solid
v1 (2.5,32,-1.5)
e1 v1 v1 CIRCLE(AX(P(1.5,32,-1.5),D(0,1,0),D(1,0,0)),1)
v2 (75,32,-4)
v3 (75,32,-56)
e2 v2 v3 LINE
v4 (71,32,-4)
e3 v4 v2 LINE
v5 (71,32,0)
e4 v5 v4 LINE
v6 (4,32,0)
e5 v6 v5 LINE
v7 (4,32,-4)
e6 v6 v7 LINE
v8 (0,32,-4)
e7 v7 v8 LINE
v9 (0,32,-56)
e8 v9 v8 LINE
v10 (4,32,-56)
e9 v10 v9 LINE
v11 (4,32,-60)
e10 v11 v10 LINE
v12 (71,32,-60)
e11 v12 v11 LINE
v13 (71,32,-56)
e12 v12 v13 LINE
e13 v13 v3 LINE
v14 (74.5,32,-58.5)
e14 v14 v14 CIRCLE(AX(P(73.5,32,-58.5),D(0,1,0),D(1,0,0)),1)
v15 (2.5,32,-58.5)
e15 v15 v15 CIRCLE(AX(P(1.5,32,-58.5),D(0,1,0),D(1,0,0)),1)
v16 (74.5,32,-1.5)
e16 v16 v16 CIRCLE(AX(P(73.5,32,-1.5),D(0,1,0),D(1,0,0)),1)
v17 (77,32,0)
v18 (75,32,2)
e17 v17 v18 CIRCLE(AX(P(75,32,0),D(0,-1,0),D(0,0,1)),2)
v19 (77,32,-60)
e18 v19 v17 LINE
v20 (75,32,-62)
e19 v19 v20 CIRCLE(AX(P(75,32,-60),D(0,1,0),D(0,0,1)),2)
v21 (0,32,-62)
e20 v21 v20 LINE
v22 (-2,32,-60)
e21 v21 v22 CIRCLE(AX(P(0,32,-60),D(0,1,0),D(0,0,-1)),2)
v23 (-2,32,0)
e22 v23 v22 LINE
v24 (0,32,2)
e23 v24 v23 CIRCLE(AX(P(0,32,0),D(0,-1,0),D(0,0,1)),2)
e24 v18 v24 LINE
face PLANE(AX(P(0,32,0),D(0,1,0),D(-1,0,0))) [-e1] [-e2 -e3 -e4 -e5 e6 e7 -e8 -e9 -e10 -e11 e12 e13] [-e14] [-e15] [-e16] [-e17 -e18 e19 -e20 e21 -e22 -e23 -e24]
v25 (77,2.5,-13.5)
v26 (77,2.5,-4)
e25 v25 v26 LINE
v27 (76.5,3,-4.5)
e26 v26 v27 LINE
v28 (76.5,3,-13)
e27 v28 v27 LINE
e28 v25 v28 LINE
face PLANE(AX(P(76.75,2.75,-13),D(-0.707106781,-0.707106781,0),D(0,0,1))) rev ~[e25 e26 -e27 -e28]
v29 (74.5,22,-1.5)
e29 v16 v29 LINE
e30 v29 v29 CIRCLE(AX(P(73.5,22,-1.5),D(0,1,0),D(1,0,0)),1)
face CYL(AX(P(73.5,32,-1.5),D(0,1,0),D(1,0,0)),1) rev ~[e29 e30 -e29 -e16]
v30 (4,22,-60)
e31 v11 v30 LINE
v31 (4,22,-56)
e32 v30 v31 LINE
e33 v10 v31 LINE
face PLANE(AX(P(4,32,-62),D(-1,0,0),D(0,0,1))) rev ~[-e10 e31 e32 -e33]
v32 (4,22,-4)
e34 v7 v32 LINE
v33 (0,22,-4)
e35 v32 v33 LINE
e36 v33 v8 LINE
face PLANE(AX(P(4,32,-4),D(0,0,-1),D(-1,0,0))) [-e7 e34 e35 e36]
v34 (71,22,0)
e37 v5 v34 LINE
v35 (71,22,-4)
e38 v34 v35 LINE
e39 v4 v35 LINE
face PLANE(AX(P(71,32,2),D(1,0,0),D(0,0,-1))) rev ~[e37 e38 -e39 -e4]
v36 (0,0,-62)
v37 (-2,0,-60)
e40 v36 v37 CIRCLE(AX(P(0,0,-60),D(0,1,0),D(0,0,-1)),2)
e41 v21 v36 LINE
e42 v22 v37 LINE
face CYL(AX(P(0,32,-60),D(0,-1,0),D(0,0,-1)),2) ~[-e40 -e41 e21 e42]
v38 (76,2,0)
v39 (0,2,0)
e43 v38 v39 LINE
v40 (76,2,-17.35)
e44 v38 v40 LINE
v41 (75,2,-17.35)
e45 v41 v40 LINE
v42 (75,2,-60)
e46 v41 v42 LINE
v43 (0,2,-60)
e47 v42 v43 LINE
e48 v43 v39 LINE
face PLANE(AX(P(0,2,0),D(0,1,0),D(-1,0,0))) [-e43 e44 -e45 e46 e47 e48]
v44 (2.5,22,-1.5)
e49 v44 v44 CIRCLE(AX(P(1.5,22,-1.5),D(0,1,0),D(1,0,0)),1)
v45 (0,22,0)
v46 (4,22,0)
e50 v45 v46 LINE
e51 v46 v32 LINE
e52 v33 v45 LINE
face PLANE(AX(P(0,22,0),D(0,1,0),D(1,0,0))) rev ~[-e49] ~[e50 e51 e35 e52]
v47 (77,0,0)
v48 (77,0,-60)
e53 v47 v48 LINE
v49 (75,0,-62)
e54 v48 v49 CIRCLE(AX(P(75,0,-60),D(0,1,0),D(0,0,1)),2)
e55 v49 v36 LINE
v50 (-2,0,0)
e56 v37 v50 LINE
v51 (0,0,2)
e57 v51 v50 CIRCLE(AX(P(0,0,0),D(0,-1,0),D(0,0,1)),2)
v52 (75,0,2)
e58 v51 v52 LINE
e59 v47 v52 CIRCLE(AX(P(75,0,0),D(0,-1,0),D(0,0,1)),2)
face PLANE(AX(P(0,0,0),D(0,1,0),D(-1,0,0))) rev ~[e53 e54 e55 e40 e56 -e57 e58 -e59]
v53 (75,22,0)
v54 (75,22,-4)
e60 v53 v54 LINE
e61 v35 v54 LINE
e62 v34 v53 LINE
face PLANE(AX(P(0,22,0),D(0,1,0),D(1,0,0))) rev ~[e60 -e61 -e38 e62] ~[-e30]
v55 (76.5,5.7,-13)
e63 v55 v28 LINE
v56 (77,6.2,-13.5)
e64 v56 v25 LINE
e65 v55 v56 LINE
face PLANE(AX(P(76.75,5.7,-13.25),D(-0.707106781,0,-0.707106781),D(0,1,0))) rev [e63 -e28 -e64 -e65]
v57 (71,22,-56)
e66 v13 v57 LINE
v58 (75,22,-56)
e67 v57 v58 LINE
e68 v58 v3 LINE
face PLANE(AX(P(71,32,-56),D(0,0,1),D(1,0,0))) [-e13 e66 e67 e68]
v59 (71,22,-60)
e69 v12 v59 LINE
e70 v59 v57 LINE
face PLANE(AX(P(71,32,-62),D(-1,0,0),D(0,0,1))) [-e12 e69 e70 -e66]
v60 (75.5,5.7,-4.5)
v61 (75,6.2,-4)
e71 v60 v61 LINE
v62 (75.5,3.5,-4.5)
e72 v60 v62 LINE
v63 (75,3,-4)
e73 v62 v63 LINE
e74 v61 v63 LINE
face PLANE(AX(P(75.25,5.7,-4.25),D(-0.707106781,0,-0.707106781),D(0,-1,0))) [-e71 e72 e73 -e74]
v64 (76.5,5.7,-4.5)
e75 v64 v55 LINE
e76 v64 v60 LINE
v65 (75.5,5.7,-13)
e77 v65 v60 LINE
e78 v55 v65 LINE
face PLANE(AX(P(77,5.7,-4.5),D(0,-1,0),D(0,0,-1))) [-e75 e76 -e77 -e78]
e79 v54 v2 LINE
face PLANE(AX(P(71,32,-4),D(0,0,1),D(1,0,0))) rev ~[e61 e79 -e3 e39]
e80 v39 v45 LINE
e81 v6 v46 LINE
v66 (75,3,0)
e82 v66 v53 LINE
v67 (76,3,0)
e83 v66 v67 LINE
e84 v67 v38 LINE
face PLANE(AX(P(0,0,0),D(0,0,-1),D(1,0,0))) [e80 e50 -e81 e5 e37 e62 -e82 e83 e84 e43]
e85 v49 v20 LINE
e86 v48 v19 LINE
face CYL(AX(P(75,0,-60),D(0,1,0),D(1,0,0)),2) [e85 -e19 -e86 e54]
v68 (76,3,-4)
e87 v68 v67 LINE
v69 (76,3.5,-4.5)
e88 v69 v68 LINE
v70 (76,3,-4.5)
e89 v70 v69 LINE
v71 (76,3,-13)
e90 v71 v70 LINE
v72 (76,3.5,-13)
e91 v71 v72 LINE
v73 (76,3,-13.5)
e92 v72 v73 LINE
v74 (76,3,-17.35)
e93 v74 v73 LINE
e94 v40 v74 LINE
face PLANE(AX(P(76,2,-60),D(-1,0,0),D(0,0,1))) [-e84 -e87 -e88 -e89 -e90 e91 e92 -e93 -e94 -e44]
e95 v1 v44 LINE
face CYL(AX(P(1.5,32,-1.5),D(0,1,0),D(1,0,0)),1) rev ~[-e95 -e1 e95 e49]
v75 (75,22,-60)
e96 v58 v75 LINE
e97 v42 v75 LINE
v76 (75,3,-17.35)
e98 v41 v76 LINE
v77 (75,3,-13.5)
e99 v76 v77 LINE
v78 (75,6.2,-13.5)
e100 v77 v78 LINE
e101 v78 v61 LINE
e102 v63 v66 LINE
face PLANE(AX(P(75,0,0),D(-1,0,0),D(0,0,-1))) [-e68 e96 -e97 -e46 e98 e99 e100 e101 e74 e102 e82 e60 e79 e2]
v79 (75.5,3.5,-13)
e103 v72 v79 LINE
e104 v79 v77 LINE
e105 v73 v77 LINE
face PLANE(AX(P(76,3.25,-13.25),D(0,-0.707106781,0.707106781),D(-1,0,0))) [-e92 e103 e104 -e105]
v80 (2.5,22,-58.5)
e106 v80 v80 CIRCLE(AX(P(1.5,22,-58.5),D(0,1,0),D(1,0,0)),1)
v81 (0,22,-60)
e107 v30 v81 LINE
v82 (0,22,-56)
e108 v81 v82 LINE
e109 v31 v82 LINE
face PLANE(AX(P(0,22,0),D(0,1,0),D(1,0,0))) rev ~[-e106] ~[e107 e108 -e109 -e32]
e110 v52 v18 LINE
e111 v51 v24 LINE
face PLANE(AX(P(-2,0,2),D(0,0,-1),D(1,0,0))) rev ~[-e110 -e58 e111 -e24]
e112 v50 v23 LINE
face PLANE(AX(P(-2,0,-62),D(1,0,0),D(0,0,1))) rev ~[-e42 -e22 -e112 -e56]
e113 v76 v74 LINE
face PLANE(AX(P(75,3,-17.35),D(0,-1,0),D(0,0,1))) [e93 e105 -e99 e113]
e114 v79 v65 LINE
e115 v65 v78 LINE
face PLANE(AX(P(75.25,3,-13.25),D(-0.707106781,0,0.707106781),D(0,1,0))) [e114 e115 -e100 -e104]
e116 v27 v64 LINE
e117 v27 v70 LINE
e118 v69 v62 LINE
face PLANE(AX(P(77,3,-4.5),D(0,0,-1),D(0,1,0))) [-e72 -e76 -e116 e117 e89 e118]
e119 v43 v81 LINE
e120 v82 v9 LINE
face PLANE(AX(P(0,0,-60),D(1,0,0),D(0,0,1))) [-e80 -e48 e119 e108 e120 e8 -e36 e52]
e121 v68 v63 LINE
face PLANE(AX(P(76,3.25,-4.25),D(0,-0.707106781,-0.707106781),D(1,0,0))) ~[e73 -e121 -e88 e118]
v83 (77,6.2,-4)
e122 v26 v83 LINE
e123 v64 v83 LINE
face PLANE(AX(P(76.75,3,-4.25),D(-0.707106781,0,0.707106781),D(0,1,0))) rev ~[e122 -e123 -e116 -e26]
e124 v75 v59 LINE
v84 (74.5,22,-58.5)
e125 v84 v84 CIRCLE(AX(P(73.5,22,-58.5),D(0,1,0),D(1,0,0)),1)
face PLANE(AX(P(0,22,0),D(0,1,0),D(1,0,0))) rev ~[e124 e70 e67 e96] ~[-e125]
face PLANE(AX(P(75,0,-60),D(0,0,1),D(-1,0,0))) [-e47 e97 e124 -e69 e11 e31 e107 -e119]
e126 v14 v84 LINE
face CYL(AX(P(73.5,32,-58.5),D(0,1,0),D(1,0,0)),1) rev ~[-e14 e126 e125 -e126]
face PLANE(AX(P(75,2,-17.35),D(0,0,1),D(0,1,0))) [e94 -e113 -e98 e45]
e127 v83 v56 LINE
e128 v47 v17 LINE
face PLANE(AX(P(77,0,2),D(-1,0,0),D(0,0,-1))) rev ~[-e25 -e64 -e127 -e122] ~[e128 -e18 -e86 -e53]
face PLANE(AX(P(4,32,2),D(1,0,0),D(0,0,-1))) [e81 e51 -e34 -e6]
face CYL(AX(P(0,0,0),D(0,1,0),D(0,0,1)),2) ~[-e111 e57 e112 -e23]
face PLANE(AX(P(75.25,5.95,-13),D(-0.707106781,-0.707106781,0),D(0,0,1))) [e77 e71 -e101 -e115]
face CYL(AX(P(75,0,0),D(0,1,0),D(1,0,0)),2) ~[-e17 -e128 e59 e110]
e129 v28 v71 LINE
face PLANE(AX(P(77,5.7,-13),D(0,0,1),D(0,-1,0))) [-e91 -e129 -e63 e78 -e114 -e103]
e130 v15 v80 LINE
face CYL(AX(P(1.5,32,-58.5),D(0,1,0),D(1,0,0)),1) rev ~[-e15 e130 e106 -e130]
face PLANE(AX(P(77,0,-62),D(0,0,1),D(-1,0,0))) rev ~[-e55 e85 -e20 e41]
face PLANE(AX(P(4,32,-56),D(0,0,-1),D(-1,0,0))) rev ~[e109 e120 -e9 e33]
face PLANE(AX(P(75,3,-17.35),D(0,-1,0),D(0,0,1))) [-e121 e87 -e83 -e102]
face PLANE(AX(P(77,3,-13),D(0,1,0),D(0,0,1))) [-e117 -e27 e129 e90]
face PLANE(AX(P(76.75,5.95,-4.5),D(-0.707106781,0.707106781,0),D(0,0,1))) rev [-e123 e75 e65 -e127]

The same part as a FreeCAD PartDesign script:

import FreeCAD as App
import Part
import Sketcher
Q = App.Units.Quantity


def edges_at(feature, points):
    """Names of the edges that pass closest to the given points."""
    edges = feature.Shape.Edges
    near = lambda p: min(range(len(edges)), key=lambda i: edges[i].distToShape(Part.Vertex(*p))[0])
    return sorted({f"Edge{near(p) + 1}" for p in points})

doc = App.newDocument("Part")
body = doc.addObject("PartDesign::Body", "Body")

sketch1 = body.newObject("Sketcher::SketchObject", "Sketch")
sketch1.AttachmentSupport = (doc.getObject("XZ_Plane"), [""])
sketch1.MapMode = "FlatFace"
sketch1.addGeometry([
    Part.LineSegment(App.Vector(0, -60, 0), App.Vector(0, 0, 0)),
    Part.LineSegment(App.Vector(0, 0, 0), App.Vector(75, 0, 0)),
    Part.LineSegment(App.Vector(75, 0, 0), App.Vector(75, -60, 0)),
    Part.LineSegment(App.Vector(75, -60, 0), App.Vector(0, -60, 0)),
], False)
sketch1.addConstraint([
    Sketcher.Constraint("Coincident", 0, 2, 1, 1),
    Sketcher.Constraint("Coincident", 1, 2, 2, 1),
    Sketcher.Constraint("Coincident", 2, 2, 3, 1),
    Sketcher.Constraint("Coincident", 3, 2, 0, 1),
    Sketcher.Constraint("Vertical", 0),
    Sketcher.Constraint("Horizontal", 1),
    Sketcher.Constraint("Vertical", 2),
    Sketcher.Constraint("Horizontal", 3),
    Sketcher.Constraint("Coincident", 0, 2, -1, 1),
    Sketcher.Constraint("DistanceX", 1, 1, 1, 2, Q("75 mm")),
    Sketcher.Constraint("DistanceY", 0, 1, 0, 2, Q("60 mm")),
])
pad1 = body.newObject("PartDesign::Pad", "Pad")
pad1.Profile = sketch1
pad1.Length = 2
pad1.Reversed = True

sketch2 = body.newObject("Sketcher::SketchObject", "Sketch001")
sketch2.AttachmentSupport = (doc.getObject("XZ_Plane"), [""])
sketch2.MapMode = "FlatFace"
sketch2.addGeometry([
    Part.LineSegment(App.Vector(-2, -62, 0), App.Vector(-2, 2, 0)),
    Part.LineSegment(App.Vector(-2, 2, 0), App.Vector(77, 2, 0)),
    Part.LineSegment(App.Vector(77, 2, 0), App.Vector(77, -62, 0)),
    Part.LineSegment(App.Vector(77, -62, 0), App.Vector(-2, -62, 0)),
    Part.LineSegment(App.Vector(75, 0, 0), App.Vector(0, 0, 0)),
    Part.LineSegment(App.Vector(0, 0, 0), App.Vector(0, -60, 0)),
    Part.LineSegment(App.Vector(0, -60, 0), App.Vector(75, -60, 0)),
    Part.LineSegment(App.Vector(75, -60, 0), App.Vector(75, 0, 0)),
], False)
sketch2.addConstraint([
    Sketcher.Constraint("Coincident", 0, 2, 1, 1),
    Sketcher.Constraint("Coincident", 1, 2, 2, 1),
    Sketcher.Constraint("Coincident", 2, 2, 3, 1),
    Sketcher.Constraint("Coincident", 3, 2, 0, 1),
    Sketcher.Constraint("Coincident", 4, 2, 5, 1),
    Sketcher.Constraint("Coincident", 5, 2, 6, 1),
    Sketcher.Constraint("Coincident", 6, 2, 7, 1),
    Sketcher.Constraint("Coincident", 7, 2, 4, 1),
    Sketcher.Constraint("Vertical", 0),
    Sketcher.Constraint("Horizontal", 1),
    Sketcher.Constraint("Vertical", 2),
    Sketcher.Constraint("Horizontal", 3),
    Sketcher.Constraint("Horizontal", 4),
    Sketcher.Constraint("Vertical", 5),
    Sketcher.Constraint("Horizontal", 6),
    Sketcher.Constraint("Vertical", 7),
    Sketcher.Constraint("Coincident", 4, 2, -1, 1),
    Sketcher.Constraint("DistanceX", 4, 2, 4, 1, Q("75 mm")),
    Sketcher.Constraint("DistanceY", 5, 2, 5, 1, Q("60 mm")),
    Sketcher.Constraint("DistanceX", 0, 2, -1, 1, Q("2 mm")),
    Sketcher.Constraint("DistanceY", -1, 1, 0, 2, Q("2 mm")),
    Sketcher.Constraint("DistanceY", 3, 2, 5, 2, Q("2 mm")),
    Sketcher.Constraint("DistanceX", 6, 2, 2, 2, Q("2 mm")),
])
pad2 = body.newObject("PartDesign::Pad", "Pad001")
pad2.Profile = sketch2
pad2.Length = 32
pad2.Reversed = True

sketch3 = body.newObject("Sketcher::SketchObject", "Sketch002")
sketch3.AttachmentSupport = (doc.getObject("XZ_Plane"), [""])
sketch3.MapMode = "FlatFace"
sketch3.AttachmentOffset = App.Placement(App.Vector(0, 0, -32), App.Rotation())
sketch3.addGeometry([
    Part.LineSegment(App.Vector(-2, -4, 0), App.Vector(-2, 2, 0)),
    Part.LineSegment(App.Vector(-2, 2, 0), App.Vector(4, 2, 0)),
    Part.LineSegment(App.Vector(4, 2, 0), App.Vector(4, -4, 0)),
    Part.LineSegment(App.Vector(4, -4, 0), App.Vector(-2, -4, 0)),
    Part.LineSegment(App.Vector(77, -56, 0), App.Vector(77, -62, 0)),
    Part.LineSegment(App.Vector(77, -62, 0), App.Vector(71, -62, 0)),
    Part.LineSegment(App.Vector(71, -62, 0), App.Vector(71, -56, 0)),
    Part.LineSegment(App.Vector(71, -56, 0), App.Vector(77, -56, 0)),
    Part.LineSegment(App.Vector(77, 2, 0), App.Vector(77, -4, 0)),
    Part.LineSegment(App.Vector(77, -4, 0), App.Vector(71, -4, 0)),
    Part.LineSegment(App.Vector(71, -4, 0), App.Vector(71, 2, 0)),
    Part.LineSegment(App.Vector(71, 2, 0), App.Vector(77, 2, 0)),
    Part.LineSegment(App.Vector(4, -56, 0), App.Vector(4, -62, 0)),
    Part.LineSegment(App.Vector(4, -62, 0), App.Vector(-2, -62, 0)),
    Part.LineSegment(App.Vector(-2, -62, 0), App.Vector(-2, -56, 0)),
    Part.LineSegment(App.Vector(-2, -56, 0), App.Vector(4, -56, 0)),
], False)
sketch3.addConstraint([
    Sketcher.Constraint("Coincident", 0, 2, 1, 1),
    Sketcher.Constraint("Coincident", 1, 2, 2, 1),
    Sketcher.Constraint("Coincident", 2, 2, 3, 1),
    Sketcher.Constraint("Coincident", 3, 2, 0, 1),
    Sketcher.Constraint("Coincident", 4, 2, 5, 1),
    Sketcher.Constraint("Coincident", 5, 2, 6, 1),
    Sketcher.Constraint("Coincident", 6, 2, 7, 1),
    Sketcher.Constraint("Coincident", 7, 2, 4, 1),
    Sketcher.Constraint("Coincident", 8, 2, 9, 1),
    Sketcher.Constraint("Coincident", 9, 2, 10, 1),
    Sketcher.Constraint("Coincident", 10, 2, 11, 1),
    Sketcher.Constraint("Coincident", 11, 2, 8, 1),
    Sketcher.Constraint("Coincident", 12, 2, 13, 1),
    Sketcher.Constraint("Coincident", 13, 2, 14, 1),
    Sketcher.Constraint("Coincident", 14, 2, 15, 1),
    Sketcher.Constraint("Coincident", 15, 2, 12, 1),
    Sketcher.Constraint("Vertical", 0),
    Sketcher.Constraint("Horizontal", 1),
    Sketcher.Constraint("Vertical", 2),
    Sketcher.Constraint("Horizontal", 3),
    Sketcher.Constraint("Vertical", 4),
    Sketcher.Constraint("Horizontal", 5),
    Sketcher.Constraint("Vertical", 6),
    Sketcher.Constraint("Horizontal", 7),
    Sketcher.Constraint("Vertical", 8),
    Sketcher.Constraint("Horizontal", 9),
    Sketcher.Constraint("Vertical", 10),
    Sketcher.Constraint("Horizontal", 11),
    Sketcher.Constraint("Vertical", 12),
    Sketcher.Constraint("Horizontal", 13),
    Sketcher.Constraint("Vertical", 14),
    Sketcher.Constraint("Horizontal", 15),
    Sketcher.Constraint("Horizontal", 3, 2, 8, 2),
    Sketcher.Constraint("Horizontal", 1, 2, 10, 2),
    Sketcher.Constraint("Horizontal", 5, 2, 12, 2),
    Sketcher.Constraint("Horizontal", 7, 2, 14, 2),
    Sketcher.Constraint("Vertical", 7, 2, 8, 2),
    Sketcher.Constraint("Vertical", 6, 2, 9, 2),
    Sketcher.Constraint("Vertical", 2, 2, 12, 2),
    Sketcher.Constraint("Vertical", 3, 2, 13, 2),
    Sketcher.Constraint("Equal", 3, 5),
    Sketcher.Constraint("Equal", 15, 0),
    Sketcher.Constraint("Equal", 2, 4),
    Sketcher.Constraint("DistanceX", 1, 1, 1, 2, Q("6 mm")),
    Sketcher.Constraint("DistanceX", 0, 2, -1, 1, Q("2 mm")),
    Sketcher.Constraint("DistanceY", -1, 1, 0, 2, Q("2 mm")),
    Sketcher.Constraint("DistanceX", -1, 1, 4, 2, Q("77 mm")),
    Sketcher.Constraint("DistanceY", 4, 2, -1, 1, Q("62 mm")),
])
pad3 = body.newObject("PartDesign::Pad", "Pad002")
pad3.Profile = sketch3
pad3.Length = 10

sketch4 = body.newObject("Sketcher::SketchObject", "Sketch003")
sketch4.AttachmentSupport = (doc.getObject("XZ_Plane"), [""])
sketch4.MapMode = "FlatFace"
sketch4.AttachmentOffset = App.Placement(App.Vector(0, 0, -32), App.Rotation())
sketch4.addGeometry([
    Part.Circle(App.Vector(1.5, -58.5, 0), App.Vector(0, 0, 1), 1),
    Part.Circle(App.Vector(73.5, -58.5, 0), App.Vector(0, 0, 1), 1),
    Part.Circle(App.Vector(73.5, -1.5, 0), App.Vector(0, 0, 1), 1),
    Part.Circle(App.Vector(1.5, -1.5, 0), App.Vector(0, 0, 1), 1),
], False)
sketch4.addConstraint([
    Sketcher.Constraint("Equal", 0, 1),
    Sketcher.Constraint("Equal", 1, 2),
    Sketcher.Constraint("Equal", 2, 3),
    Sketcher.Constraint("Horizontal", 0, 3, 1, 3),
    Sketcher.Constraint("Horizontal", 2, 3, 3, 3),
    Sketcher.Constraint("Vertical", 1, 3, 2, 3),
    Sketcher.Constraint("Vertical", 0, 3, 3, 3),
    Sketcher.Constraint("Diameter", 0, Q("2 mm")),
    Sketcher.Constraint("DistanceX", 0, 3, 1, 3, Q("72 mm")),
    Sketcher.Constraint("DistanceY", 1, 3, 2, 3, Q("57 mm")),
    Sketcher.Constraint("DistanceX", -1, 1, 0, 3, Q("1.5 mm")),
    Sketcher.Constraint("DistanceY", 0, 3, -1, 1, Q("58.5 mm")),
])
pocket1 = body.newObject("PartDesign::Pocket", "Pocket")
pocket1.Profile = sketch4
pocket1.Length = 10
pocket1.Reversed = True

sketch5 = body.newObject("Sketcher::SketchObject", "Sketch004")
sketch5.AttachmentSupport = (doc.getObject("YZ_Plane"), [""])
sketch5.MapMode = "FlatFace"
sketch5.AttachmentOffset = App.Placement(App.Vector(0, 0, 77), App.Rotation())
sketch5.addGeometry([
    Part.LineSegment(App.Vector(5.7, -13, 0), App.Vector(5.7, -4.5, 0)),
    Part.LineSegment(App.Vector(5.7, -4.5, 0), App.Vector(3, -4.5, 0)),
    Part.LineSegment(App.Vector(3, -4.5, 0), App.Vector(3, -13, 0)),
    Part.LineSegment(App.Vector(3, -13, 0), App.Vector(5.7, -13, 0)),
], False)
sketch5.addConstraint([
    Sketcher.Constraint("Coincident", 0, 2, 1, 1),
    Sketcher.Constraint("Coincident", 1, 2, 2, 1),
    Sketcher.Constraint("Coincident", 2, 2, 3, 1),
    Sketcher.Constraint("Coincident", 3, 2, 0, 1),
    Sketcher.Constraint("Vertical", 0),
    Sketcher.Constraint("Horizontal", 1),
    Sketcher.Constraint("Vertical", 2),
    Sketcher.Constraint("Horizontal", 3),
    Sketcher.Constraint("DistanceX", 1, 2, 1, 1, Q("2.7 mm")),
    Sketcher.Constraint("DistanceY", 0, 1, 0, 2, Q("8.5 mm")),
    Sketcher.Constraint("DistanceX", -1, 1, 1, 2, Q("3 mm")),
    Sketcher.Constraint("DistanceY", 0, 2, -1, 1, Q("4.5 mm")),
])
pocket2 = body.newObject("PartDesign::Pocket", "Pocket001")
pocket2.Profile = sketch5
pocket2.Length = 10

sketch6 = body.newObject("Sketcher::SketchObject", "Sketch005")
sketch6.AttachmentSupport = (doc.getObject("YZ_Plane"), [""])
sketch6.MapMode = "FlatFace"
sketch6.AttachmentOffset = App.Placement(App.Vector(0, 0, 75), App.Rotation())
sketch6.addGeometry([
    Part.LineSegment(App.Vector(2, -17.4, 0), App.Vector(2, 0, 0)),
    Part.LineSegment(App.Vector(2, 0, 0), App.Vector(3, 0, 0)),
    Part.LineSegment(App.Vector(3, 0, 0), App.Vector(3, -17.4, 0)),
    Part.LineSegment(App.Vector(3, -17.4, 0), App.Vector(2, -17.4, 0)),
], False)
sketch6.addConstraint([
    Sketcher.Constraint("Coincident", 0, 2, 1, 1),
    Sketcher.Constraint("Coincident", 1, 2, 2, 1),
    Sketcher.Constraint("Coincident", 2, 2, 3, 1),
    Sketcher.Constraint("Coincident", 3, 2, 0, 1),
    Sketcher.Constraint("Vertical", 0),
    Sketcher.Constraint("Horizontal", 1),
    Sketcher.Constraint("Vertical", 2),
    Sketcher.Constraint("Horizontal", 3),
    Sketcher.Constraint("PointOnObject", 0, 2, -1),
    Sketcher.Constraint("DistanceX", 1, 1, 1, 2, Q("1 mm")),
    Sketcher.Constraint("DistanceY", 0, 1, 0, 2, Q("17.35 mm")),
    Sketcher.Constraint("DistanceX", -1, 1, 0, 2, Q("2 mm")),
])
pocket3 = body.newObject("PartDesign::Pocket", "Pocket002")
pocket3.Profile = sketch6
pocket3.Length = 1
pocket3.Reversed = True
doc.recompute()

chamfer = body.newObject("PartDesign::Chamfer", "Chamfer")
chamfer.Base = (pocket3, edges_at(pocket3, [
    (75.5, 3, -13),
    (75.5, 3, -4.5),
    (75, 4.35, -4.5),
    (75, 4.35, -13),
    (75, 5.7, -8.75),
]))
chamfer.Size = 0.5
doc.recompute()

chamfer2 = body.newObject("PartDesign::Chamfer", "Chamfer001")
chamfer2.Base = (chamfer, edges_at(chamfer, [
    (77, 5.7, -8.75),
    (77, 4.35, -4.5),
    (77, 3, -8.75),
    (77, 4.35, -13),
]))
chamfer2.Size = 0.5
doc.recompute()

fillet = body.newObject("PartDesign::Fillet", "Fillet")
fillet.Base = (chamfer2, edges_at(chamfer2, [
    (77, 16, 2),
    (77, 16, -62),
    (-2, 16, -62),
    (-2, 16, 2),
]))
fillet.Radius = 2

doc.recompute()
